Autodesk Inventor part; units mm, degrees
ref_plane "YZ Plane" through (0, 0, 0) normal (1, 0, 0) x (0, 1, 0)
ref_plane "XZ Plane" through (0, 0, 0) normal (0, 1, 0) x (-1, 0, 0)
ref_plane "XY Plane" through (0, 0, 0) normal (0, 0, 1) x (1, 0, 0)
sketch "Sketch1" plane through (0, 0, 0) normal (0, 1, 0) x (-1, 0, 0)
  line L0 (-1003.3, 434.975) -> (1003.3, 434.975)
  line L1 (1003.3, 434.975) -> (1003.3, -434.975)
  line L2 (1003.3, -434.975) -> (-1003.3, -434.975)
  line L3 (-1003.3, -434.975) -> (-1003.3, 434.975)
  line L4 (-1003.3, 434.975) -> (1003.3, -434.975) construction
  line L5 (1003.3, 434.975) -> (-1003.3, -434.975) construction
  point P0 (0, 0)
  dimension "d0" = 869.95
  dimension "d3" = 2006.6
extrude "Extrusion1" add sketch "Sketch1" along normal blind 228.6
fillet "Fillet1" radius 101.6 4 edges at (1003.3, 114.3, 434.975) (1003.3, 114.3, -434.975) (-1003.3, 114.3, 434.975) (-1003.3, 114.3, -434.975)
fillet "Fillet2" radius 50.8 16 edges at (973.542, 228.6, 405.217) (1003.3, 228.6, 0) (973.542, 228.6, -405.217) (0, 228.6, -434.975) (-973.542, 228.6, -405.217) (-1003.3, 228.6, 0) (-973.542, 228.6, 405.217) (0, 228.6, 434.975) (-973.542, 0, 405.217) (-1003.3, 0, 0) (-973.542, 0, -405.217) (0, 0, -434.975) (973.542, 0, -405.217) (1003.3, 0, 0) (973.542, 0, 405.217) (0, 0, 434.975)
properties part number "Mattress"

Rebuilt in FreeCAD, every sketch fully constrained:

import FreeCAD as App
import Part
import Sketcher
Q = App.Units.Quantity


def edges_at(feature, points):
    """Names of the edges that pass closest to the given points."""
    edges = feature.Shape.Edges
    near = lambda p: min(range(len(edges)), key=lambda i: edges[i].distToShape(Part.Vertex(*p))[0])
    return sorted({f"Edge{near(p) + 1}" for p in points})


def add_polygon(sketch, points):
    """Adds a closed chain of lines whose ends are joined by coincident constraints."""
    first, n = sketch.GeometryCount, len(points)
    for a, b in zip(points, points[1:] + points[:1]):
        sketch.addGeometry(Part.LineSegment(App.Vector(*a, 0), App.Vector(*b, 0)), False)
    for i in range(n):
        sketch.addConstraint(Sketcher.Constraint("Coincident", first + i, 2, first + (i + 1) % n, 1))

doc = App.newDocument("Part")
body = doc.addObject("PartDesign::Body", "Body")

sketch1 = body.newObject("Sketcher::SketchObject", "Sketch")
sketch1.AttachmentSupport = (doc.getObject("XZ_Plane"), [""])
sketch1.MapMode = "FlatFace"
add_polygon(sketch1, [(-1003.3, 434.975), (1003.3, 434.975), (1003.3, -434.975), (-1003.3, -434.975)])
sketch1.addConstraint(Sketcher.Constraint("Horizontal", 0))
sketch1.addConstraint(Sketcher.Constraint("Vertical", 1))
sketch1.addConstraint(Sketcher.Constraint("Horizontal", 2))
sketch1.addConstraint(Sketcher.Constraint("Vertical", 3))
sketch1.addConstraint(Sketcher.Constraint("Symmetric", 0, 2, 2, 2, -1, 1))
sketch1.addConstraint(Sketcher.Constraint("DistanceX", 0, 1, 0, 2, Q("79 in")))
sketch1.addConstraint(Sketcher.Constraint("DistanceY", 1, 2, 1, 1, Q("34.25 in")))
pad1 = body.newObject("PartDesign::Pad", "Pad")
pad1.Profile = sketch1
pad1.Length = Q("9 in")
pad1.Reversed = True
doc.recompute()

fillet = body.newObject("PartDesign::Fillet", "Fillet")
fillet.Base = (pad1, edges_at(pad1, [
    (1003.3, 114.3, 434.975),
    (1003.3, 114.3, -434.975),
    (-1003.3, 114.3, 434.975),
    (-1003.3, 114.3, -434.975),
]))
fillet.Radius = Q("4 in")
doc.recompute()

fillet2 = body.newObject("PartDesign::Fillet", "Fillet001")
fillet2.Base = (fillet, edges_at(fillet, [
    (973.542, 228.6, 405.217),
    (1003.3, 228.6, 0),
    (973.542, 228.6, -405.217),
    (0, 228.6, -434.975),
    (-973.542, 228.6, -405.217),
    (-1003.3, 228.6, 0),
    (-973.542, 228.6, 405.217),
    (0, 228.6, 434.975),
    (-973.542, 0, 405.217),
    (-1003.3, 0, 0),
    (-973.542, 0, -405.217),
    (0, 0, -434.975),
    (973.542, 0, -405.217),
    (1003.3, 0, 0),
    (973.542, 0, 405.217),
    (0, 0, 434.975),
]))
fillet2.Radius = Q("2 in")

doc.recompute()
